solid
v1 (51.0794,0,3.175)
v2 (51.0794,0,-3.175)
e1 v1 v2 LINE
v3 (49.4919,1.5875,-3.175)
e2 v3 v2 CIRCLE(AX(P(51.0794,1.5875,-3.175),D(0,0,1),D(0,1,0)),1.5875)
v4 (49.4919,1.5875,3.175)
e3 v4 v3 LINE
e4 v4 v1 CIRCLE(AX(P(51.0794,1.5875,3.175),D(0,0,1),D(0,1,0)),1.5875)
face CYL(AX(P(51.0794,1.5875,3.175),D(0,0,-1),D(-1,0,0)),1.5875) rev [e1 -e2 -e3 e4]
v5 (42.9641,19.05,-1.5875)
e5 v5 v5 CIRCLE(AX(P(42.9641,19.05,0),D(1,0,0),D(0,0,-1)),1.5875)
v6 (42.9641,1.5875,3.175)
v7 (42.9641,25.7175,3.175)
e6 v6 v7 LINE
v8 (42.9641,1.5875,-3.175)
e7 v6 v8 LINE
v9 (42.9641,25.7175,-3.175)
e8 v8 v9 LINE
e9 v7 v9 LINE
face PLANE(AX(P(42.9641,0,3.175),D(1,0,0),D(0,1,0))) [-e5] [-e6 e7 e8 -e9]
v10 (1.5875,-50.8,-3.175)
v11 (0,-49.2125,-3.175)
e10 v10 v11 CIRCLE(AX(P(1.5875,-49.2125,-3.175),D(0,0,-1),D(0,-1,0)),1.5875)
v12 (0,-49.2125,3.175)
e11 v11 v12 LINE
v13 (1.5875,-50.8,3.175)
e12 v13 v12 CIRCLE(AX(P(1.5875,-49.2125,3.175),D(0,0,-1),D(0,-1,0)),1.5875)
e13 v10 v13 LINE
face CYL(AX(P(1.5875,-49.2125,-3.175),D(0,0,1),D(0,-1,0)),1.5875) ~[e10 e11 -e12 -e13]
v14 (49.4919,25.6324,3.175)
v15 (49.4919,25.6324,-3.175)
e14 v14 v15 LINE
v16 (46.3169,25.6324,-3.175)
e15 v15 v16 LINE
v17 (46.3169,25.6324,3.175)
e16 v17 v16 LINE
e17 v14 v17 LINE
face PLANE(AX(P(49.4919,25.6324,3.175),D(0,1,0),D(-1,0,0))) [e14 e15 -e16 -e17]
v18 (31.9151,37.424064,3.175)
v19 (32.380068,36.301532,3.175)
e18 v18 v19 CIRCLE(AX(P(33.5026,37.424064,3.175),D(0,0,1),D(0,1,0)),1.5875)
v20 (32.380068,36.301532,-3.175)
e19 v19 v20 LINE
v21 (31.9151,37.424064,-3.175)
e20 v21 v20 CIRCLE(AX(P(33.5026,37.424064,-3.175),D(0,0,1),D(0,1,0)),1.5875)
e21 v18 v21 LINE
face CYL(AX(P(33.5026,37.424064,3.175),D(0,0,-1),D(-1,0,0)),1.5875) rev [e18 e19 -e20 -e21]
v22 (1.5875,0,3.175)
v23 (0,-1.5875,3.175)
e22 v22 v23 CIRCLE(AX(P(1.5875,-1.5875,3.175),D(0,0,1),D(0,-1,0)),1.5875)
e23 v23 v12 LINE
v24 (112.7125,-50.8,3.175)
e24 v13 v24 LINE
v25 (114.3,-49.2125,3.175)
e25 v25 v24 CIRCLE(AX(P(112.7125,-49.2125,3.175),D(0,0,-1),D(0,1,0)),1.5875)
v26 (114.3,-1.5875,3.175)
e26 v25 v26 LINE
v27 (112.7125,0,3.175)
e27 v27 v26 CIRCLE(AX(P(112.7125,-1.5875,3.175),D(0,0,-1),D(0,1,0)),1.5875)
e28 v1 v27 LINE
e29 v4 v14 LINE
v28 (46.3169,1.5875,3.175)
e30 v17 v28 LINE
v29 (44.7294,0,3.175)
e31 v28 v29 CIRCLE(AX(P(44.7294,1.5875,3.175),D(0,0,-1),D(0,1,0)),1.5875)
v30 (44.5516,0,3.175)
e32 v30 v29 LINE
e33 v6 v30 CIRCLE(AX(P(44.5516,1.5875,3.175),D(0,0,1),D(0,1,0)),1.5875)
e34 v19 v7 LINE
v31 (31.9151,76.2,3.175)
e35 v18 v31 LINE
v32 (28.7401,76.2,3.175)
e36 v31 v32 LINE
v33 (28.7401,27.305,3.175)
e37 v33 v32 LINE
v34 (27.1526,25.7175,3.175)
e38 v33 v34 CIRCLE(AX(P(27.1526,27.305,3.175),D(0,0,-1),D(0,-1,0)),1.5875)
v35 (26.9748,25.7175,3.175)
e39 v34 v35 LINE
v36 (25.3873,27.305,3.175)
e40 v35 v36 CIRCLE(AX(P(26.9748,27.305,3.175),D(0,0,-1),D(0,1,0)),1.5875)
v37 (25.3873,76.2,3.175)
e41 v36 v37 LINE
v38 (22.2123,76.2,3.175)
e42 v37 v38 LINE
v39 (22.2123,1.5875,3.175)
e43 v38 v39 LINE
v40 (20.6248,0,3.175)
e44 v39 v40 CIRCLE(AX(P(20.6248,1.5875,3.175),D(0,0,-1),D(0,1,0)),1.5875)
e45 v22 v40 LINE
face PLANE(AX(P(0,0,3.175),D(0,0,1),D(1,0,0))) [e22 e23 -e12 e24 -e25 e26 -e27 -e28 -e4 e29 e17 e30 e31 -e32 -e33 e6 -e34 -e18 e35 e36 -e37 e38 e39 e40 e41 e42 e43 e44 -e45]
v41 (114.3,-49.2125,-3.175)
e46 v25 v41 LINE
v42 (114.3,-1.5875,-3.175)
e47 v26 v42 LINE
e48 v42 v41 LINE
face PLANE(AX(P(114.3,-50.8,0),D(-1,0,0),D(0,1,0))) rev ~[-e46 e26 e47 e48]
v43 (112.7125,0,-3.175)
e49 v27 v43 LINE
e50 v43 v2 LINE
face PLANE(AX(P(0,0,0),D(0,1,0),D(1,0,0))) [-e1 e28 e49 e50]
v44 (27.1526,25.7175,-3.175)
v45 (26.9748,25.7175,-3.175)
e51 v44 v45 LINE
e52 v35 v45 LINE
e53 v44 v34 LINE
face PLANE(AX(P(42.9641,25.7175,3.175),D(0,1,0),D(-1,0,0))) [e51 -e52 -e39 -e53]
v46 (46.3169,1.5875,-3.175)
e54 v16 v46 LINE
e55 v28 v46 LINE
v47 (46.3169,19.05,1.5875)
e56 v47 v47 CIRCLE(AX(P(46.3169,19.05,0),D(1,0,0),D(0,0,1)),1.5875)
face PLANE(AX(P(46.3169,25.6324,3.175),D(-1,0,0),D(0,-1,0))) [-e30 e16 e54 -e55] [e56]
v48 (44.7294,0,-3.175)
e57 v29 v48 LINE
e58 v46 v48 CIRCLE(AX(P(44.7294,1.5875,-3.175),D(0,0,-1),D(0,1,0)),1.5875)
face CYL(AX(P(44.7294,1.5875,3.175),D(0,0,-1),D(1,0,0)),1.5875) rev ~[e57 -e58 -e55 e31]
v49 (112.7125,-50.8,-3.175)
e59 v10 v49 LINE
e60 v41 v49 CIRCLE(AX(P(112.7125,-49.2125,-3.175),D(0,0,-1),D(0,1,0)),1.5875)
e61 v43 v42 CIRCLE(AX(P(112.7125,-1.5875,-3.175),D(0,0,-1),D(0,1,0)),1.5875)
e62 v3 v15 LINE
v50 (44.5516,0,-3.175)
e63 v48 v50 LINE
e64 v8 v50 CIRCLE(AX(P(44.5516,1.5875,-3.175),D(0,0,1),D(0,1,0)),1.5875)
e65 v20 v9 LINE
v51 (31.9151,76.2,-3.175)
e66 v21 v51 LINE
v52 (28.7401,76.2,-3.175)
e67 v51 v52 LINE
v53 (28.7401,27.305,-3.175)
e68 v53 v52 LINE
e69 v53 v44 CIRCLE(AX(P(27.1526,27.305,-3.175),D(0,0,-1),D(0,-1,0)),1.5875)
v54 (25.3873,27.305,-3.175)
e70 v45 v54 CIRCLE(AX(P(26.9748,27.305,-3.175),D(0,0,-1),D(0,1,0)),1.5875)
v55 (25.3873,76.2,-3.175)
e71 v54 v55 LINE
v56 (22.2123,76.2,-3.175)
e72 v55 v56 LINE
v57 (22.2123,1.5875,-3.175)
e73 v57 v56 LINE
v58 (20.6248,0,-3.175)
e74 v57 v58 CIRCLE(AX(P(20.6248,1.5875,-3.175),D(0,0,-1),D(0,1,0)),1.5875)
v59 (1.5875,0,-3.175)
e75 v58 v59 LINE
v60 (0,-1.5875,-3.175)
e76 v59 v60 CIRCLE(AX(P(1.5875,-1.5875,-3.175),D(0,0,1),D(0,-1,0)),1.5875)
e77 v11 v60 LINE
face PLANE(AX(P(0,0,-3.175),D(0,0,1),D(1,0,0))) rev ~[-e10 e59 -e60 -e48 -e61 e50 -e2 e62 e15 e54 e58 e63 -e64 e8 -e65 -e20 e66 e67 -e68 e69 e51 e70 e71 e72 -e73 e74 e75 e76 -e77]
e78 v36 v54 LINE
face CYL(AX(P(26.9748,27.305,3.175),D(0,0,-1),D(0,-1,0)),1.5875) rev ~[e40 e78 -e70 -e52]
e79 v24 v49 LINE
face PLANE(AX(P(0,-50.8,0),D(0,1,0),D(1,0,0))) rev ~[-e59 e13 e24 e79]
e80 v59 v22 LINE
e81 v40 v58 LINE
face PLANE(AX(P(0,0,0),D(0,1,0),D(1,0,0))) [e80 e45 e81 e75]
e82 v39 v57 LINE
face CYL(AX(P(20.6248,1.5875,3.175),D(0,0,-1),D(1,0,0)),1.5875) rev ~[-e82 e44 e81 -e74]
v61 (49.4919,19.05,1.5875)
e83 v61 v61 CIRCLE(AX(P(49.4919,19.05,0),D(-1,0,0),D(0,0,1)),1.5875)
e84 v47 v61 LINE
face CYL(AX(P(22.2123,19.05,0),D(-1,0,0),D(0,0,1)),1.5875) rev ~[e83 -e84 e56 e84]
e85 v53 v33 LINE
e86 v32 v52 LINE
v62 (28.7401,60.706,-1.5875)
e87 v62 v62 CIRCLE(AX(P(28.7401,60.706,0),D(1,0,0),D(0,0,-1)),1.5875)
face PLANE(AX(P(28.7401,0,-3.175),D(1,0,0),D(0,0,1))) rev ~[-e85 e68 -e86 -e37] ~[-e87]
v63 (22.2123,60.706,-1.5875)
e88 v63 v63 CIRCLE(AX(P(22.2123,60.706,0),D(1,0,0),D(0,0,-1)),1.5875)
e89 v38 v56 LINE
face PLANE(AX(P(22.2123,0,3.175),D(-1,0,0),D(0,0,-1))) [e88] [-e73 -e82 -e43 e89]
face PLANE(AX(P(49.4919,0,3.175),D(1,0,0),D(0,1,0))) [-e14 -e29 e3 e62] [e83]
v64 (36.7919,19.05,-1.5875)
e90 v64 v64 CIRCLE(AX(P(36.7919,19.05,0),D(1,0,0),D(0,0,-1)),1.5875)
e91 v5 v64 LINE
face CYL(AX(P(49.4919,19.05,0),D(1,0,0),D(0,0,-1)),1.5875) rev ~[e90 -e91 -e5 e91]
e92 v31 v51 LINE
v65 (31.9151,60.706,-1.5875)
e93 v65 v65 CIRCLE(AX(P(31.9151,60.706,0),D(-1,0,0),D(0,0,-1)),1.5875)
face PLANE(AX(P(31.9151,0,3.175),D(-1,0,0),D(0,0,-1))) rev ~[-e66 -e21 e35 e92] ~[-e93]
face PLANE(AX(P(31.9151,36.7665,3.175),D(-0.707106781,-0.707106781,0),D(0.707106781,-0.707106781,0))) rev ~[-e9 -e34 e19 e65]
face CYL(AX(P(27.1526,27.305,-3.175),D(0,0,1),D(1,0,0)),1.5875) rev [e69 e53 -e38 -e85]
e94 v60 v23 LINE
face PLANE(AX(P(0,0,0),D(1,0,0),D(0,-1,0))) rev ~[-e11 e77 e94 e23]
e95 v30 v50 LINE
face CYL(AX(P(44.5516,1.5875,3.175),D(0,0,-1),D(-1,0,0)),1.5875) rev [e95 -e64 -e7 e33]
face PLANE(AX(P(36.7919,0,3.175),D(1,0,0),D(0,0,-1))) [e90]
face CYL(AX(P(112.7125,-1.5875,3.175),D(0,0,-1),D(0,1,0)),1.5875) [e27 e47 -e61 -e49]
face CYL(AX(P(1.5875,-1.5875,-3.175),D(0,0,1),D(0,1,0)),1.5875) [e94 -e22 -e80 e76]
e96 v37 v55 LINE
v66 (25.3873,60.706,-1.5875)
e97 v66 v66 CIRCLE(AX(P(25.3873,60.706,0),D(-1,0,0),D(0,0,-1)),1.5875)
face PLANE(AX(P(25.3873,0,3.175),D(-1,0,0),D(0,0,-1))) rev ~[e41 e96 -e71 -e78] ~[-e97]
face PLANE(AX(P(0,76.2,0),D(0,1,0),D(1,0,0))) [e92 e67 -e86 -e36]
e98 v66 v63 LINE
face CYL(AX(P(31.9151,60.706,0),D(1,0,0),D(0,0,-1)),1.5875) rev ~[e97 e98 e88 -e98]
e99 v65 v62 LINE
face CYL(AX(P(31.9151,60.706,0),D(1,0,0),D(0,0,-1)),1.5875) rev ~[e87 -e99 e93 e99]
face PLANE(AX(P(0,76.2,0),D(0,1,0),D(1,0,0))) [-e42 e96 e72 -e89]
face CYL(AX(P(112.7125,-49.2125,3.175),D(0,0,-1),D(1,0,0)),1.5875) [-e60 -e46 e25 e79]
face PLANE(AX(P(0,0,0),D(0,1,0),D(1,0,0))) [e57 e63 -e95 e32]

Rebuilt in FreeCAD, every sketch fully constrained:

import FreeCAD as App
import Part
import Sketcher
Q = App.Units.Quantity


def edges_at(feature, points):
    """Names of the edges that pass closest to the given points."""
    edges = feature.Shape.Edges
    near = lambda p: min(range(len(edges)), key=lambda i: edges[i].distToShape(Part.Vertex(*p))[0])
    return sorted({f"Edge{near(p) + 1}" for p in points})


def add_polygon(sketch, points):
    """Adds a closed chain of lines whose ends are joined by coincident constraints."""
    first, n = sketch.GeometryCount, len(points)
    for a, b in zip(points, points[1:] + points[:1]):
        sketch.addGeometry(Part.LineSegment(App.Vector(*a, 0), App.Vector(*b, 0)), False)
    for i in range(n):
        sketch.addConstraint(Sketcher.Constraint("Coincident", first + i, 2, first + (i + 1) % n, 1))

doc = App.newDocument("Part")
body = doc.addObject("PartDesign::Body", "Body")

# Sketch on XY plane
sketch1 = body.newObject("Sketcher::SketchObject", "Sketch")
sketch1.AttachmentSupport = (doc.getObject("XY_Plane"), [""])
sketch1.MapMode = "FlatFace"
add_polygon(sketch1, [(114, 0), (0, 0), (0, -51), (114, -51)])  # lines 0-3
sketch1.addConstraint([
    Sketcher.Constraint("Horizontal", 0),
    Sketcher.Constraint("Vertical", 1),
    Sketcher.Constraint("Horizontal", 2),
    Sketcher.Constraint("Vertical", 3),
    Sketcher.Constraint("Coincident", 0, 2, -1, 1),
    Sketcher.Constraint("DistanceY", 1, 2, 1, 1, Q("2 in")),
    Sketcher.Constraint("DistanceX", 0, 2, 0, 1, Q("4.5 in")),
])
pad1 = body.newObject("PartDesign::Pad", "Pad")
pad1.Profile = sketch1
pad1.Length = Q("0.125 in")

# Sketch on XY plane
sketch2 = body.newObject("Sketcher::SketchObject", "Sketch001")
sketch2.AttachmentSupport = (doc.getObject("XY_Plane"), [""])
sketch2.MapMode = "FlatFace"
add_polygon(sketch2, [(0, 0), (114, 0), (114, -51), (0, -51)])  # lines 0-3
sketch2.addConstraint([
    Sketcher.Constraint("Horizontal", 0),
    Sketcher.Constraint("Vertical", 1),
    Sketcher.Constraint("Horizontal", 2),
    Sketcher.Constraint("Vertical", 3),
    Sketcher.Constraint("Coincident", 3, 2, -1, 1),
    Sketcher.Constraint("DistanceY", 1, 2, 1, 1, Q("2 in")),
    Sketcher.Constraint("DistanceX", 0, 1, 0, 2, Q("4.5 in")),
])
pad2 = body.newObject("PartDesign::Pad", "Pad001")
pad2.Profile = sketch2
pad2.Length = Q("0.125 in")
pad2.Reversed = True

# Sketch on XZ plane
sketch3 = body.newObject("Sketcher::SketchObject", "Sketch002")
sketch3.AttachmentSupport = (doc.getObject("XZ_Plane"), [""])
sketch3.MapMode = "FlatFace"
add_polygon(sketch3, [(28.7, 3.2), (31.9, 3.2), (31.9, -3.2), (28.7, -3.2)])  # lines 0-3
sketch3.addConstraint([
    Sketcher.Constraint("Horizontal", 0),
    Sketcher.Constraint("Vertical", 1),
    Sketcher.Constraint("Horizontal", 2),
    Sketcher.Constraint("Vertical", 3),
    Sketcher.Constraint("DistanceY", 1, 2, 1, 1, Q("0.25 in")),
    Sketcher.Constraint("DistanceX", 0, 1, 0, 2, Q("0.125 in")),
    Sketcher.Constraint("DistanceY", -1, 1, 0, 2, Q("0.125 in")),
    Sketcher.Constraint("DistanceX", -1, 1, 0, 2, Q("1.2565 in")),
])
pad3 = body.newObject("PartDesign::Pad", "Pad002")
pad3.Profile = sketch3
pad3.Length = Q("3 in")
pad3.Reversed = True

# Sketch on XZ plane
sketch4 = body.newObject("Sketcher::SketchObject", "Sketch003")
sketch4.AttachmentSupport = (doc.getObject("XZ_Plane"), [""])
sketch4.MapMode = "FlatFace"
add_polygon(sketch4, [(22.2, 3.2), (25.4, 3.2), (25.4, -3.2), (22.2, -3.2)])  # lines 0-3
sketch4.addConstraint([
    Sketcher.Constraint("Horizontal", 0),
    Sketcher.Constraint("Vertical", 1),
    Sketcher.Constraint("Horizontal", 2),
    Sketcher.Constraint("Vertical", 3),
    Sketcher.Constraint("DistanceY", 1, 2, 1, 1, Q("0.25 in")),
    Sketcher.Constraint("DistanceX", 0, 1, 0, 2, Q("0.125 in")),
    Sketcher.Constraint("DistanceY", -1, 1, 0, 2, Q("0.125 in")),
    Sketcher.Constraint("DistanceX", -1, 1, 0, 2, Q("0.9995 in")),
])
pad4 = body.newObject("PartDesign::Pad", "Pad003")
pad4.Profile = sketch4
pad4.Length = Q("3 in")
pad4.Reversed = True

# Sketch on YZ plane
sketch5 = body.newObject("Sketcher::SketchObject", "Sketch004")
sketch5.AttachmentSupport = (doc.getObject("YZ_Plane"), [""])
sketch5.MapMode = "FlatFace"
sketch5.AttachmentOffset = App.Placement(App.Vector(0, 0, 1.2565 * 25.4), App.Rotation())
sketch5.addGeometry(Part.Circle(App.Vector(19.1, 0, 0), App.Vector(0, 0, 1), 1.6), False)
sketch5.addConstraint([
    Sketcher.Constraint("PointOnObject", 0, 3, -1),
    Sketcher.Constraint("Diameter", 0, Q("0.125 in")),
    Sketcher.Constraint("DistanceX", -1, 1, 0, 3, Q("0.75 in")),
])
pocket1 = body.newObject("PartDesign::Pocket", "Pocket")
pocket1.Profile = sketch5
pocket1.Length = Q("2 in")
pocket1.Midplane = True

# Sketch on YZ plane
sketch6 = body.newObject("Sketcher::SketchObject", "Sketch005")
sketch6.AttachmentSupport = (doc.getObject("YZ_Plane"), [""])
sketch6.MapMode = "FlatFace"
sketch6.AttachmentOffset = App.Placement(App.Vector(0, 0, 1.2565 * 25.4), App.Rotation())
sketch6.addGeometry(Part.Circle(App.Vector(60.7, 0, 0), App.Vector(0, 0, 1), 1.6), False)
sketch6.addConstraint([
    Sketcher.Constraint("PointOnObject", 0, 3, -1),
    Sketcher.Constraint("Diameter", 0, Q("0.125 in")),
    Sketcher.Constraint("DistanceX", -1, 1, 0, 3, Q("2.39 in")),
])
pocket2 = body.newObject("PartDesign::Pocket", "Pocket001")
pocket2.Profile = sketch6
pocket2.Length = Q("2 in")

# Sketch on XY plane
sketch7 = body.newObject("Sketcher::SketchObject", "Sketch006")
sketch7.AttachmentSupport = (doc.getObject("XY_Plane"), [""])
sketch7.MapMode = "FlatFace"
sketch7.AttachmentOffset = App.Placement(App.Vector(0, 0, 0.125 * 25.4), App.Rotation())
add_polygon(sketch7, [(46.3, 25.6), (46.3, 0), (49.5, 0), (49.5, 25.6)])  # lines 0-3
sketch7.addConstraint([
    Sketcher.Constraint("Vertical", 0),
    Sketcher.Constraint("Horizontal", 1),
    Sketcher.Constraint("Vertical", 2),
    Sketcher.Constraint("Horizontal", 3),
    Sketcher.Constraint("PointOnObject", 0, 2, -1),
    Sketcher.Constraint("DistanceX", 1, 1, 1, 2, Q("0.125 in")),
    Sketcher.Constraint("DistanceY", 0, 2, 0, 1, 25.6324),
    Sketcher.Constraint("DistanceX", -1, 1, 0, 2, Q("1.8235 in")),
])
pad5 = body.newObject("PartDesign::Pad", "Pad004")
pad5.Profile = sketch7
pad5.Length = Q("0.25 in")
pad5.Reversed = True

# Sketch on XY plane
sketch8 = body.newObject("Sketcher::SketchObject", "Sketch007")
sketch8.AttachmentSupport = (doc.getObject("XY_Plane"), [""])
sketch8.MapMode = "FlatFace"
sketch8.AttachmentOffset = App.Placement(App.Vector(0, 0, 0.125 * 25.4), App.Rotation())
add_polygon(sketch8, [(39.8, 25.7), (39.8, 0), (43, 0), (43, 25.7)])  # lines 0-3
sketch8.addConstraint([
    Sketcher.Constraint("Vertical", 0),
    Sketcher.Constraint("Horizontal", 1),
    Sketcher.Constraint("Vertical", 2),
    Sketcher.Constraint("Horizontal", 3),
    Sketcher.Constraint("PointOnObject", 0, 2, -1),
    Sketcher.Constraint("DistanceX", 1, 1, 1, 2, Q("0.125 in")),
    Sketcher.Constraint("DistanceY", 0, 2, 0, 1, Q("1.0125 in")),
    Sketcher.Constraint("DistanceX", -1, 1, 0, 2, Q("1.5665 in")),
])
pad6 = body.newObject("PartDesign::Pad", "Pad005")
pad6.Profile = sketch8
pad6.Length = Q("0.25 in")
pad6.Reversed = True

# Sketch on XY plane
sketch9 = body.newObject("Sketcher::SketchObject", "Sketch008")
sketch9.AttachmentSupport = (doc.getObject("XY_Plane"), [""])
sketch9.MapMode = "FlatFace"
sketch9.AttachmentOffset = App.Placement(App.Vector(0, 0, 0.125 * 25.4), App.Rotation())
add_polygon(sketch9, [(39.8, 22.5), (39.8, 25.7), (43, 25.7), (31.9, 36.8), (31.9, 22.5)])  # lines 0-4
sketch9.addConstraint([
    Sketcher.Constraint("Vertical", 0),
    Sketcher.Constraint("Horizontal", 1),
    Sketcher.Constraint("Vertical", 3),
    Sketcher.Constraint("Horizontal", 4),
    Sketcher.Constraint("Equal", 1, 0),
    Sketcher.Constraint("DistanceX", 1, 1, 1, 2, Q("0.125 in")),
    Sketcher.Constraint("Angle", 2, Q("135 deg")),
    Sketcher.Constraint("DistanceX", 4, 1, 4, 2, Q("0.31 in")),
    Sketcher.Constraint("DistanceX", -1, 1, 0, 2, Q("1.5665 in")),
    Sketcher.Constraint("DistanceY", -1, 1, 0, 2, Q("1.0125 in")),
])
pad7 = body.newObject("PartDesign::Pad", "Pad006")
pad7.Profile = sketch9
pad7.Length = Q("0.25 in")
pad7.Reversed = True

# Sketch on YZ plane
sketch10 = body.newObject("Sketcher::SketchObject", "Sketch009")
sketch10.AttachmentSupport = (doc.getObject("YZ_Plane"), [""])
sketch10.MapMode = "FlatFace"
sketch10.AttachmentOffset = App.Placement(App.Vector(0, 0, 0.8745 * 25.4), App.Rotation())
sketch10.addGeometry(Part.Circle(App.Vector(19.1, 0, 0), App.Vector(0, 0, 1), 1.6), False)
sketch10.addConstraint([
    Sketcher.Constraint("PointOnObject", 0, 3, -1),
    Sketcher.Constraint("Diameter", 0, Q("0.125 in")),
    Sketcher.Constraint("DistanceX", -1, 1, 0, 3, Q("0.75 in")),
])
pocket3 = body.newObject("PartDesign::Pocket", "Pocket002")
pocket3.Profile = sketch10
pocket3.Length = Q("2 in")
pocket3.Reversed = True

# Sketch on XY plane
sketch11 = body.newObject("Sketcher::SketchObject", "Sketch010")
sketch11.AttachmentSupport = (doc.getObject("XY_Plane"), [""])
sketch11.MapMode = "FlatFace"
sketch11.AttachmentOffset = App.Placement(App.Vector(0, 0, 0.125 * 25.4), App.Rotation())
add_polygon(sketch11, [(43, 0), (43, 26), (22, 26), (22, 0)])  # lines 0-3
sketch11.addConstraint([
    Sketcher.Constraint("Vertical", 0),
    Sketcher.Constraint("Horizontal", 1),
    Sketcher.Constraint("Vertical", 2),
    Sketcher.Constraint("Horizontal", 3),
    Sketcher.Constraint("PointOnObject", 2, 2, -1),
    Sketcher.Constraint("DistanceX", 1, 2, 1, 1, Q("0.817 in")),
    Sketcher.Constraint("DistanceY", 0, 1, 0, 2, Q("1.0125 in")),
    Sketcher.Constraint("DistanceX", -1, 1, 0, 2, Q("1.6915 in")),
])
pad8 = body.newObject("PartDesign::Pad", "Pad007")
pad8.Profile = sketch11
pad8.Length = Q("0.25 in")
pad8.Reversed = True

# Sketch on YZ plane
sketch12 = body.newObject("Sketcher::SketchObject", "Sketch011")
sketch12.AttachmentSupport = (doc.getObject("YZ_Plane"), [""])
sketch12.MapMode = "FlatFace"
sketch12.AttachmentOffset = App.Placement(App.Vector(0, 0, 1.9485 * 25.4), App.Rotation())
sketch12.addGeometry(Part.Circle(App.Vector(19.1, 0, 0), App.Vector(0, 0, 1), 1.6), False)
sketch12.addConstraint([
    Sketcher.Constraint("PointOnObject", 0, 3, -1),
    Sketcher.Constraint("Diameter", 0, Q("0.125 in")),
    Sketcher.Constraint("DistanceX", -1, 1, 0, 3, Q("0.75 in")),
])
pocket4 = body.newObject("PartDesign::Pocket", "Pocket003")
pocket4.Profile = sketch12
pocket4.Length = Q("0.5 in")
doc.recompute()

fillet = body.newObject("PartDesign::Fillet", "Fillet")
fillet.Base = (pocket4, edges_at(pocket4, [(42.964, 0, 0), (46.317, 0, 0)]))
fillet.Radius = Q("0.0625 in")
doc.recompute()

fillet2 = body.newObject("PartDesign::Fillet", "Fillet001")
fillet2.Base = (fillet, edges_at(fillet, [
    (25.387, 25.718, 0),
    (28.74, 25.718, 0),
    (22.212, 0, 0),
    (0, 0, 0),
    (49.492, 0, 0),
    (114.3, 0, 0),
    (114.3, -50.8, 0),
    (0, -50.8, 0),
]))
fillet2.Radius = Q("0.0625 in")
doc.recompute()

fillet3 = body.newObject("PartDesign::Fillet", "Fillet002")
fillet3.Base = (fillet2, edges_at(fillet2, [(31.915, 36.767, 0)]))
fillet3.Radius = Q("0.0625 in")

doc.recompute()
